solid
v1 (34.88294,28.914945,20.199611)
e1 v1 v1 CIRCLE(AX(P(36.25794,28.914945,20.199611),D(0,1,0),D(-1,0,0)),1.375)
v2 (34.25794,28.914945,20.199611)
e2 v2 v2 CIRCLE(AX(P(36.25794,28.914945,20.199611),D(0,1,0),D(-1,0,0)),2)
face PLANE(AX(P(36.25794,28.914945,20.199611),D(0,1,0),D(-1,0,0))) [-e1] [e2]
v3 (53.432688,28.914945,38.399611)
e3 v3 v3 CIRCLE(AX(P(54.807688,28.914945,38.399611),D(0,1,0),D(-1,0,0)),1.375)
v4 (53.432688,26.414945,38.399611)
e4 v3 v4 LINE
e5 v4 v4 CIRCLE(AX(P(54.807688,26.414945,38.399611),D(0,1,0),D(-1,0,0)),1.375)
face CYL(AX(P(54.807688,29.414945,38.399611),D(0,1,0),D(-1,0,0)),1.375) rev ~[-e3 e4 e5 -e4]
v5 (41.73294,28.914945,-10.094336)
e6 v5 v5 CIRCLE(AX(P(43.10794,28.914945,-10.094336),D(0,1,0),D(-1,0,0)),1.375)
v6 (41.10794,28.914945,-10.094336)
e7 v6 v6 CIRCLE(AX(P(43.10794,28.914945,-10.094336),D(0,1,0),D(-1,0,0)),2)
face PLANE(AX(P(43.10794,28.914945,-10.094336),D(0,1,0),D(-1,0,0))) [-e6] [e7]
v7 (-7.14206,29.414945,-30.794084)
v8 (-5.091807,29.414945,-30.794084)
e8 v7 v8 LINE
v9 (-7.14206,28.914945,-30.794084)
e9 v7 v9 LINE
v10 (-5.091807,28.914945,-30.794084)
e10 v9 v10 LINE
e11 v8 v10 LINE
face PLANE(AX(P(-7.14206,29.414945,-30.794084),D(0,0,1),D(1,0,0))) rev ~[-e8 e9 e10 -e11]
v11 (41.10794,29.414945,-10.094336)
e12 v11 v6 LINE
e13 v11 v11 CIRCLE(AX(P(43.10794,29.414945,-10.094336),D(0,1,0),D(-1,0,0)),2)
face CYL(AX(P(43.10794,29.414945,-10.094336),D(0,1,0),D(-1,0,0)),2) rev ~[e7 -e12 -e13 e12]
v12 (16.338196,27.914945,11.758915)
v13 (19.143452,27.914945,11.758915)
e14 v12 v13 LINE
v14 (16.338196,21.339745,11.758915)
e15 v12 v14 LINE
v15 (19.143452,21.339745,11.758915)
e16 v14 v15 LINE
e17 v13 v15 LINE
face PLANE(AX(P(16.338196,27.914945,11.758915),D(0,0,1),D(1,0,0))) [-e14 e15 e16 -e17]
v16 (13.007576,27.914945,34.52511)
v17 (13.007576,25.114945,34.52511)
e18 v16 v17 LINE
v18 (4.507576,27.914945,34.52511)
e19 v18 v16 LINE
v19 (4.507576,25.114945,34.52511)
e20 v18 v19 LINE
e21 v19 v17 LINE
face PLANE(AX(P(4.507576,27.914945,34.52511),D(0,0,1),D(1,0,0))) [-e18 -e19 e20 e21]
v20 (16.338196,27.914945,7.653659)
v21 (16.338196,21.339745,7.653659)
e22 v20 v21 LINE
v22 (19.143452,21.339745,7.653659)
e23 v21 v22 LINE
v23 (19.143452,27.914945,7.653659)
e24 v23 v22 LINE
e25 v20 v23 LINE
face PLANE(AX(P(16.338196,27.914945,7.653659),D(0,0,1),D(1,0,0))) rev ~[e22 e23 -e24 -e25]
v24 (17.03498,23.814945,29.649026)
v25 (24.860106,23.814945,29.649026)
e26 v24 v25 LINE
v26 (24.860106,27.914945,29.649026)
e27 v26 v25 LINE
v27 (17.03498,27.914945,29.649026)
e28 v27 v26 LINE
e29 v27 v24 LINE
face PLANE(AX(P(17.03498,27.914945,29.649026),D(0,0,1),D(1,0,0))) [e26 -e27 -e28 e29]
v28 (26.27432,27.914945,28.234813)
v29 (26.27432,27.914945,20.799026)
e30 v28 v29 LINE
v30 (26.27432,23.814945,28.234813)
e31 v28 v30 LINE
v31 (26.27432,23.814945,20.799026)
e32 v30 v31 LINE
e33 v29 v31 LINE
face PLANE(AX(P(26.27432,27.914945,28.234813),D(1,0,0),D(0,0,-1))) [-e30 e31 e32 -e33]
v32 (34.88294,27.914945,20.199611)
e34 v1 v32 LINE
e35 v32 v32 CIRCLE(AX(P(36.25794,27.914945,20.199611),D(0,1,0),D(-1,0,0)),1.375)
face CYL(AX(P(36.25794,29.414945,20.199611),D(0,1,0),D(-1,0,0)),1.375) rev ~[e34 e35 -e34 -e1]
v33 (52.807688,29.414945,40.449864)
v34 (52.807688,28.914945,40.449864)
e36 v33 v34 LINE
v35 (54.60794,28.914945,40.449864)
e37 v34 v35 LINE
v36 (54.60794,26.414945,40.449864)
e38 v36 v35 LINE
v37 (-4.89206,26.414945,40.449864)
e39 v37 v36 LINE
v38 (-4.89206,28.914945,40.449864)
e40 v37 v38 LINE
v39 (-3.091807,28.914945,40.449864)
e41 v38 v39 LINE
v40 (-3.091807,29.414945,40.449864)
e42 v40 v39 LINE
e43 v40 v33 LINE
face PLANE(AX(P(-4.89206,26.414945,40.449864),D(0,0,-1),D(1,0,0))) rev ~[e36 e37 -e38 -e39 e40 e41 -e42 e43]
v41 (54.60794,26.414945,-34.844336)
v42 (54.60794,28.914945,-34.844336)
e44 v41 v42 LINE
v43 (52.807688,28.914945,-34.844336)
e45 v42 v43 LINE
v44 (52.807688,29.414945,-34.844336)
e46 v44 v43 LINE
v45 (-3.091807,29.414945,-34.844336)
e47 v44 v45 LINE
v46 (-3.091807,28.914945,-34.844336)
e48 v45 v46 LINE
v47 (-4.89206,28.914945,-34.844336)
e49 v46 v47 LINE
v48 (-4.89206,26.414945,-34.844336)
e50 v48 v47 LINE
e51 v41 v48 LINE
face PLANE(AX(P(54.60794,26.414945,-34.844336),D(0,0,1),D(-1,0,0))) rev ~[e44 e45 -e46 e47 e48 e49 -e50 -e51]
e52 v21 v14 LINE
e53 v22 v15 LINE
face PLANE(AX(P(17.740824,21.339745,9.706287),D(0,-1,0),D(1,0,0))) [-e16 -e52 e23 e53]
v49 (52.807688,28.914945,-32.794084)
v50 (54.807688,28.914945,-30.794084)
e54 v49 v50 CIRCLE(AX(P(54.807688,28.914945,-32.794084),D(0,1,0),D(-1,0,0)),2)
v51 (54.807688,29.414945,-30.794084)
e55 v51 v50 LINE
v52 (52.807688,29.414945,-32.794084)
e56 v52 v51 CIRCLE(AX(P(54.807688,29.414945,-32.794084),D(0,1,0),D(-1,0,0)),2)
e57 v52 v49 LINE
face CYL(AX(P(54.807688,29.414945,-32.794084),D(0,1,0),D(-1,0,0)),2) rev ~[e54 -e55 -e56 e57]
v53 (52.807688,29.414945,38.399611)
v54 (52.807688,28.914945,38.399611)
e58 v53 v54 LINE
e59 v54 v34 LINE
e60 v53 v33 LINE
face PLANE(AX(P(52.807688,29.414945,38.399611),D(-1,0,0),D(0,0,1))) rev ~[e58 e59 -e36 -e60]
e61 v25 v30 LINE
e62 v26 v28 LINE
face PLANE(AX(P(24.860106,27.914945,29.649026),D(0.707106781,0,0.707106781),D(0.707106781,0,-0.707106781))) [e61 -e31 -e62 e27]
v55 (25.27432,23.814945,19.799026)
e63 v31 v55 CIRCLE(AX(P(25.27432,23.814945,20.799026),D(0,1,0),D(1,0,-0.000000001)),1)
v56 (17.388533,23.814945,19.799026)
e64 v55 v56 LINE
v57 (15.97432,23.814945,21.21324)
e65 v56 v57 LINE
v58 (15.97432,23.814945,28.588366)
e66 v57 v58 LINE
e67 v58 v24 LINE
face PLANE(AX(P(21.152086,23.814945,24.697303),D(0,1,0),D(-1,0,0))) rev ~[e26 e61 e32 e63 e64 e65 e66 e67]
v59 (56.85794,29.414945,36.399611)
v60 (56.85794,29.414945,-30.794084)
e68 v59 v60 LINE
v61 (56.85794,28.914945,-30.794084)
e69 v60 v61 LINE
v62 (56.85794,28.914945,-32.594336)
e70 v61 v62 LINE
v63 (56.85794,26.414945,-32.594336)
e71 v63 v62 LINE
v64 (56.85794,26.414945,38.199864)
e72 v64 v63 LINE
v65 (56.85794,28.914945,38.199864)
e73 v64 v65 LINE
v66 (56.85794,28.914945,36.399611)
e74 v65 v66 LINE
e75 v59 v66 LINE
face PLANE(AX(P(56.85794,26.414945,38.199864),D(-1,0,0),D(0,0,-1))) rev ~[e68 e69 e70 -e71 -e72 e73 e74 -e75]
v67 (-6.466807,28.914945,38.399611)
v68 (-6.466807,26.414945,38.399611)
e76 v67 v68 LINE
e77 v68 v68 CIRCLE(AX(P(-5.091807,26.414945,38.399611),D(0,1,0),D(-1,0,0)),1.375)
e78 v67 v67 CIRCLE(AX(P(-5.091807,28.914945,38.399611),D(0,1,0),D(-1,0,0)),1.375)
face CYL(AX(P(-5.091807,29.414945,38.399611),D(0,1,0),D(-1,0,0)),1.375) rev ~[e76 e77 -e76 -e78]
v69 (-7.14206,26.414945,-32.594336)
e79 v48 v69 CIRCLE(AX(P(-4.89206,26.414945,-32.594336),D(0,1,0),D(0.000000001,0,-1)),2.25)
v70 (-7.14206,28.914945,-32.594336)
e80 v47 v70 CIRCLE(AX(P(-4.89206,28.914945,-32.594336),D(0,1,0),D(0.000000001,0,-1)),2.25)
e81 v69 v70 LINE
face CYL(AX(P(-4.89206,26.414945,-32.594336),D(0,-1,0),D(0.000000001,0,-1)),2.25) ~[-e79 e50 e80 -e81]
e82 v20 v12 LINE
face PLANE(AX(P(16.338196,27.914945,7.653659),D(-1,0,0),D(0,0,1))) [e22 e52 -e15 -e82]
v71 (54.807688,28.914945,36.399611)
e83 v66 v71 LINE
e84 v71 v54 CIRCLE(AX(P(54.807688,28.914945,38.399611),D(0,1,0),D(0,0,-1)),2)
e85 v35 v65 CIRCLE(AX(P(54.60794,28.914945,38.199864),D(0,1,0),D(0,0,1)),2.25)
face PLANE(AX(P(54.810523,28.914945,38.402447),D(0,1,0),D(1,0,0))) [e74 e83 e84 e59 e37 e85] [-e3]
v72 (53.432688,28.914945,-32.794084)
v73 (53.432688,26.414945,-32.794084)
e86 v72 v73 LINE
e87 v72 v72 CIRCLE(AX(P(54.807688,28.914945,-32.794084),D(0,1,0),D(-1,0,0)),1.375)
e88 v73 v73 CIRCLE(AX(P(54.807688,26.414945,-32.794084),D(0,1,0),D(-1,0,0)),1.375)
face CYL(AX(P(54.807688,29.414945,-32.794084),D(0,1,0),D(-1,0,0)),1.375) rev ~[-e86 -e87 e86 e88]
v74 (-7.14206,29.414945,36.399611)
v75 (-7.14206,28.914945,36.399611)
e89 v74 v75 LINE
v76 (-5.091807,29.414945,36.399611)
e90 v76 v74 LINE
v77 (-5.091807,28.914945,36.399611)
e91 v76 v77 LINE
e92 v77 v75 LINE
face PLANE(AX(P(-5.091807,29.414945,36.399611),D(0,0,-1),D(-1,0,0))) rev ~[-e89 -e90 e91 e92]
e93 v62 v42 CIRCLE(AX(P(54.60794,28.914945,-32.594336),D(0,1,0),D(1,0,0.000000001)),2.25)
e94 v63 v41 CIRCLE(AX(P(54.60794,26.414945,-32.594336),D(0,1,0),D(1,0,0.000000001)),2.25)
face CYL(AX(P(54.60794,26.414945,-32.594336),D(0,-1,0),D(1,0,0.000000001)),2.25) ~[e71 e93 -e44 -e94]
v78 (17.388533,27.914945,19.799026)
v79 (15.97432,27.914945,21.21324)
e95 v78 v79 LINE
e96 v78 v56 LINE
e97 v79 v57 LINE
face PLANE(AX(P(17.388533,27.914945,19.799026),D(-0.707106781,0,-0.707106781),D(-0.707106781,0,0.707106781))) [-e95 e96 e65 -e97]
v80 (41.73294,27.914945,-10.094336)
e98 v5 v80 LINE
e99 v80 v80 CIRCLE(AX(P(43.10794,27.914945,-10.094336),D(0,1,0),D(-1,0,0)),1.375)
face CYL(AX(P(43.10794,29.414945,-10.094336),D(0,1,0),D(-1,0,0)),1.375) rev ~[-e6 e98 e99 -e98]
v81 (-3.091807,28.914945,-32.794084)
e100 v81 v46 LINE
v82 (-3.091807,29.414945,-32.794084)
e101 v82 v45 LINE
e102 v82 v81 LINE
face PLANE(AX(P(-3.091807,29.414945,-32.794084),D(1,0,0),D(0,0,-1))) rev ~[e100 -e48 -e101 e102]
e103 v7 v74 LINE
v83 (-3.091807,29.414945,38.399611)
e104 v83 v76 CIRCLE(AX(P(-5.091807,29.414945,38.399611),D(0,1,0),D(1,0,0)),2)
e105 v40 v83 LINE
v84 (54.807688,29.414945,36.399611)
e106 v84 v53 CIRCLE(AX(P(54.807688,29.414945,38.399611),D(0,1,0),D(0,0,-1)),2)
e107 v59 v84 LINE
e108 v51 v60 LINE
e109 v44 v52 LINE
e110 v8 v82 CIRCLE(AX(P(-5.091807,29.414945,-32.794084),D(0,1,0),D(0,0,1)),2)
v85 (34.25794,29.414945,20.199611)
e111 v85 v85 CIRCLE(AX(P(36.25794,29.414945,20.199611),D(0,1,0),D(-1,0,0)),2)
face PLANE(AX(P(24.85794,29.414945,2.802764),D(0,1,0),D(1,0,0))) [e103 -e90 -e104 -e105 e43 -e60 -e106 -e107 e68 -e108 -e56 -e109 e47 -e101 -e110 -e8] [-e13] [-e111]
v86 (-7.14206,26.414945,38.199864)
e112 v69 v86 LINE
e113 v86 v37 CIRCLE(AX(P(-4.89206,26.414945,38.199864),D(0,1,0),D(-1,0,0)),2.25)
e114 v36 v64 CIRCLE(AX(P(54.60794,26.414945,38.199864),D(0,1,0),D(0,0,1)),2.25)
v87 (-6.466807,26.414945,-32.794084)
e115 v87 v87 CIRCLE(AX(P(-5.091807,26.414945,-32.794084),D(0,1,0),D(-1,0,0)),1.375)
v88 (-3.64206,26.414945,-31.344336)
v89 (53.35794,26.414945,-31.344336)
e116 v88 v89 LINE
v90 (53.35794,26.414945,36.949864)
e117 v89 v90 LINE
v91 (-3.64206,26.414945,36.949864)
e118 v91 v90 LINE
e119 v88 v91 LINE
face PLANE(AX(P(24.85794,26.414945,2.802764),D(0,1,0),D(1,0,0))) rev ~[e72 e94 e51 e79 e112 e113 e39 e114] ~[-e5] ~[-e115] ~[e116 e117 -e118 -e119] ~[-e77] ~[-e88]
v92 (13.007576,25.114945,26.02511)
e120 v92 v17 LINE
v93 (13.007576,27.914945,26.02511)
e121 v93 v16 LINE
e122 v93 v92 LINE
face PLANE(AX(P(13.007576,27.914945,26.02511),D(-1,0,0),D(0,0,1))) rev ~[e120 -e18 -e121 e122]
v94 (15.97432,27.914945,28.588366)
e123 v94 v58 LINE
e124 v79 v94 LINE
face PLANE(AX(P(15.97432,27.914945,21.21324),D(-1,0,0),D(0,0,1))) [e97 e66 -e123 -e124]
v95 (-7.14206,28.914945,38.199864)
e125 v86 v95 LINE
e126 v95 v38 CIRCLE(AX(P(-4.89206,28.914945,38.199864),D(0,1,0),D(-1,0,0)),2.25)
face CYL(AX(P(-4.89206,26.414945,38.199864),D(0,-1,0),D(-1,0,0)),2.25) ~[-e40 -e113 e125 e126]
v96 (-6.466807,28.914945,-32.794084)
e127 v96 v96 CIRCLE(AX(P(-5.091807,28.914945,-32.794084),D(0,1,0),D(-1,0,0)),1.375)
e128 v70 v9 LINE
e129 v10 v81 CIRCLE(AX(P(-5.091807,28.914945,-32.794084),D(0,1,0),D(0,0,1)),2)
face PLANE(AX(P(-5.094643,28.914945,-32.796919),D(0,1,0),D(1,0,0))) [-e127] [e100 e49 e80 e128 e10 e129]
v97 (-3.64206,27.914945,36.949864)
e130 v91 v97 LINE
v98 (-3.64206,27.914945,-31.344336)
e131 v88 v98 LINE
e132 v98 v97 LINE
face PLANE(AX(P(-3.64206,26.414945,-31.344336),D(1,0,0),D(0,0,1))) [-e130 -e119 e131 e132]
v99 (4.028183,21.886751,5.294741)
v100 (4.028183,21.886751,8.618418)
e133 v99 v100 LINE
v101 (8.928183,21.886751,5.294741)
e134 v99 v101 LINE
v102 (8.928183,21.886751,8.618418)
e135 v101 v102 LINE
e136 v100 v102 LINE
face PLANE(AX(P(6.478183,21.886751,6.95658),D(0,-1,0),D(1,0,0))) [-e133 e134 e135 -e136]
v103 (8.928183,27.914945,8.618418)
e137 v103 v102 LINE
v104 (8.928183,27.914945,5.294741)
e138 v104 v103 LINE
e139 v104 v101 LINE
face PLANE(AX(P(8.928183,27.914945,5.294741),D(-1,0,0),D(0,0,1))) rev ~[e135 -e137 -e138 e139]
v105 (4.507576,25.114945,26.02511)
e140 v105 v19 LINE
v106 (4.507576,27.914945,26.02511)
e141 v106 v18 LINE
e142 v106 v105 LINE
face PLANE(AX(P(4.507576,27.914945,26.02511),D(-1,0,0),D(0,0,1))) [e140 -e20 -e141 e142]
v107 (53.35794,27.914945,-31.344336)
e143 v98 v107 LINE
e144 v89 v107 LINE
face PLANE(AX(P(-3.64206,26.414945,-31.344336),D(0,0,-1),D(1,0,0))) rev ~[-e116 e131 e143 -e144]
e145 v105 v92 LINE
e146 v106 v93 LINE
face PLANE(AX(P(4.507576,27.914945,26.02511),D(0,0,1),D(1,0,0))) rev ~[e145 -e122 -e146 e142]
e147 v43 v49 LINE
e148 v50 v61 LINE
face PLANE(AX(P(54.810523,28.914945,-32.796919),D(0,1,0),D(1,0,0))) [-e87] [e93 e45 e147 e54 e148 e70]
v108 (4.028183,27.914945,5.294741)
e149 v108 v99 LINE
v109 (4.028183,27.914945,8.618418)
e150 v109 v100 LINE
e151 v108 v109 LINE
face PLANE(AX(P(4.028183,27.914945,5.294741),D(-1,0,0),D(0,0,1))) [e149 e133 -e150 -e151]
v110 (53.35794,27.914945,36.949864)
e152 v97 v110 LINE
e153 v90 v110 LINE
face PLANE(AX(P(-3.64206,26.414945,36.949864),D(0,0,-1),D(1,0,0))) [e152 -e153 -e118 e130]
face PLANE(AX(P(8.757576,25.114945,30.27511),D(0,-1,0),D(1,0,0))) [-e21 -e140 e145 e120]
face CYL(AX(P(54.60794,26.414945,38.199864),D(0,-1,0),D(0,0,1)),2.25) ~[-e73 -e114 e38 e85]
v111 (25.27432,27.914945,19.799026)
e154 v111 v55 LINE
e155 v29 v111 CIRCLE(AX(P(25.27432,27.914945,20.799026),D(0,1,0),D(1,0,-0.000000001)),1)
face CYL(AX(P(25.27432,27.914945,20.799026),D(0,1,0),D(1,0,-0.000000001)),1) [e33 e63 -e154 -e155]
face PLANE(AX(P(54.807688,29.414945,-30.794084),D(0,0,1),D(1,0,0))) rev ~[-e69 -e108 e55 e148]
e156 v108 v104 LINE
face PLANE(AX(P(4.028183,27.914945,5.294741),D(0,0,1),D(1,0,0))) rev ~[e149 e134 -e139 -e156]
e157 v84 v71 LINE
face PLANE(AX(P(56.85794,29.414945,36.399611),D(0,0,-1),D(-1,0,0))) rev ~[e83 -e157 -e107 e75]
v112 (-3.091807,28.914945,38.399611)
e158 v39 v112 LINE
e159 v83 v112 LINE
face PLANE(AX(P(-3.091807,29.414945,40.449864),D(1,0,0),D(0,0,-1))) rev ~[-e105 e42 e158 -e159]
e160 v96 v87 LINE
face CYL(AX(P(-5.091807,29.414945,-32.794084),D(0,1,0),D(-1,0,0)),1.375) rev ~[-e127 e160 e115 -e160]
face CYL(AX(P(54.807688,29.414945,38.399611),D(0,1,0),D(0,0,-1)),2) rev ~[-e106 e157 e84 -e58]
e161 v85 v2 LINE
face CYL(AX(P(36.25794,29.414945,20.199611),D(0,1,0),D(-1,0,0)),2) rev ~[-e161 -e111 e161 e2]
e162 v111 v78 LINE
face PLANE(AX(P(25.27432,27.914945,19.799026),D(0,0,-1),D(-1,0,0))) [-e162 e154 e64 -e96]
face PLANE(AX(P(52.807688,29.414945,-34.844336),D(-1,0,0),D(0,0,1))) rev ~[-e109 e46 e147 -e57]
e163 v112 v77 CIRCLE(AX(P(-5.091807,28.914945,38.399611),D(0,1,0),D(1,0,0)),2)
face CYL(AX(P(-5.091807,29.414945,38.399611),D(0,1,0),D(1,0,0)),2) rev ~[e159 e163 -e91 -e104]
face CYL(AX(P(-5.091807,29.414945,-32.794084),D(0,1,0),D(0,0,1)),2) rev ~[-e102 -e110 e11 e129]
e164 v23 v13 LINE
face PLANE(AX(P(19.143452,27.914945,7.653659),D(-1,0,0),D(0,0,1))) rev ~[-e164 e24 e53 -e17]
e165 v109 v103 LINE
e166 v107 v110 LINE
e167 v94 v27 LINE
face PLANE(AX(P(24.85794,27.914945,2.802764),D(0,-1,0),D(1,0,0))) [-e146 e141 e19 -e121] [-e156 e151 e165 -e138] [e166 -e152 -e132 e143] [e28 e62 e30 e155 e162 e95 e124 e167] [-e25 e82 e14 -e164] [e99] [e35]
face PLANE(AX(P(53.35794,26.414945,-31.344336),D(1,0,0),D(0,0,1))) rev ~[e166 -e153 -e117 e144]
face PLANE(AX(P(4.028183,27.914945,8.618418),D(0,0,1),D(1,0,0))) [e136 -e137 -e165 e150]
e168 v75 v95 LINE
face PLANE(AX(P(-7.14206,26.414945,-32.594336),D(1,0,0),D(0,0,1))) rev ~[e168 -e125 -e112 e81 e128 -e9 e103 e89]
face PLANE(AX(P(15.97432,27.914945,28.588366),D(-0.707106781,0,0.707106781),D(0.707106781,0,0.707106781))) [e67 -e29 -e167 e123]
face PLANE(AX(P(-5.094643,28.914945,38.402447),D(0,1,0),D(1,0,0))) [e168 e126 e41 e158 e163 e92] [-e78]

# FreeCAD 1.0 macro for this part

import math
import FreeCAD as App
import Part
import Sketcher
from FreeCAD import Vector
Q = App.Units.Quantity


def add_polygon(sketch, points):
    """Adds a closed chain of lines whose ends are joined by coincident constraints."""
    first, n = sketch.GeometryCount, len(points)
    for a, b in zip(points, points[1:] + points[:1]):
        sketch.addGeometry(Part.LineSegment(App.Vector(*a, 0), App.Vector(*b, 0)), False)
    for i in range(n):
        sketch.addConstraint(Sketcher.Constraint("Coincident", first + i, 2, first + (i + 1) % n, 1))

doc = App.newDocument("Part")
body = doc.addObject("PartDesign::Body", "Body")

# Sketch on XZ plane
sketch1 = doc.addObject("Sketcher::SketchObject", "Sketch")
body.addObject(sketch1)
sketch1.AttachmentSupport = (doc.XZ_Plane, [""])
sketch1.MapMode = "FlatFace"
sketch1.AttachmentOffset = App.Placement(Vector(0, 0, -26.414945), App.Rotation())
sketch1.addGeometry(Part.LineSegment(Vector(-4.9, 40.4, 0), Vector(54.6, 40.4, 0)), False)
sketch1.addGeometry(Part.ArcOfCircle(Part.Circle(Vector(54.6, 38.2, 0), Vector(0, 0, 1), 2.3), math.radians(0), math.radians(90)), False)
sketch1.addGeometry(Part.LineSegment(Vector(56.9, 38.2, 0), Vector(56.9, -32.6, 0)), False)
sketch1.addGeometry(Part.ArcOfCircle(Part.Circle(Vector(54.6, -32.6, 0), Vector(0, 0, 1), 2.2), math.radians(-90), math.radians(0)), False)
sketch1.addGeometry(Part.LineSegment(Vector(54.6, -34.8, 0), Vector(-4.9, -34.8, 0)), False)
sketch1.addGeometry(Part.ArcOfCircle(Part.Circle(Vector(-4.9, -32.6, 0), Vector(0, 0, 1), 2.2), math.radians(180), math.radians(270)), False)
sketch1.addGeometry(Part.LineSegment(Vector(-7.1, -32.6, 0), Vector(-7.1, 38.2, 0)), False)
sketch1.addGeometry(Part.ArcOfCircle(Part.Circle(Vector(-4.9, 38.2, 0), Vector(0, 0, 1), 2.3), math.radians(90), math.radians(180)), False)
sketch1.addConstraint(Sketcher.Constraint("Tangent", 0, 2, 1, 2))
sketch1.addConstraint(Sketcher.Constraint("Tangent", 1, 1, 2, 1))
sketch1.addConstraint(Sketcher.Constraint("Tangent", 2, 2, 3, 2))
sketch1.addConstraint(Sketcher.Constraint("Tangent", 3, 1, 4, 1))
sketch1.addConstraint(Sketcher.Constraint("Tangent", 4, 2, 5, 2))
sketch1.addConstraint(Sketcher.Constraint("Tangent", 5, 1, 6, 1))
sketch1.addConstraint(Sketcher.Constraint("Tangent", 6, 2, 7, 2))
sketch1.addConstraint(Sketcher.Constraint("Tangent", 7, 1, 0, 1))
sketch1.addConstraint(Sketcher.Constraint("Horizontal", 0))
sketch1.addConstraint(Sketcher.Constraint("Vertical", 2))
sketch1.addConstraint(Sketcher.Constraint("Horizontal", 4))
sketch1.addConstraint(Sketcher.Constraint("Vertical", 6))
sketch1.addConstraint(Sketcher.Constraint("Equal", 1, 3))
sketch1.addConstraint(Sketcher.Constraint("Equal", 3, 5))
sketch1.addConstraint(Sketcher.Constraint("Equal", 5, 7))
sketch1.addConstraint(Sketcher.Constraint("Radius", 1, Q("2.25 mm")))
sketch1.addConstraint(Sketcher.Constraint("DistanceX", 0, 1, 0, 2, Q("59.5 mm")))
sketch1.addConstraint(Sketcher.Constraint("DistanceY", 2, 2, 2, 1, Q("70.7942 mm")))
sketch1.addConstraint(Sketcher.Constraint("DistanceX", -1, 1, 1, 3, Q("54.60794 mm")))
sketch1.addConstraint(Sketcher.Constraint("DistanceY", -1, 1, 1, 3, Q("38.199864 mm")))
pad1 = doc.addObject("PartDesign::Pad", "Pad")
body.addObject(pad1)
pad1.Profile = sketch1
pad1.Length = 3
pad1.Reversed = True

# Sketch on XZ plane
sketch2 = doc.addObject("Sketcher::SketchObject", "Sketch001")
body.addObject(sketch2)
sketch2.AttachmentSupport = (doc.XZ_Plane, [""])
sketch2.MapMode = "FlatFace"
sketch2.AttachmentOffset = App.Placement(Vector(0, 0, -26.414945), App.Rotation())
add_polygon(sketch2, [(-4, 37), (-4, -31), (53, -31), (53, 37)])  # lines 0-3
sketch2.addConstraint(Sketcher.Constraint("Vertical", 0))
sketch2.addConstraint(Sketcher.Constraint("Horizontal", 1))
sketch2.addConstraint(Sketcher.Constraint("Vertical", 2))
sketch2.addConstraint(Sketcher.Constraint("Horizontal", 3))
sketch2.addConstraint(Sketcher.Constraint("DistanceX", 1, 1, 1, 2, Q("57 mm")))
sketch2.addConstraint(Sketcher.Constraint("DistanceY", 0, 2, 0, 1, Q("68.2942 mm")))
sketch2.addConstraint(Sketcher.Constraint("DistanceX", 0, 2, -1, 1, Q("3.64206 mm")))
sketch2.addConstraint(Sketcher.Constraint("DistanceY", 0, 2, -1, 1, Q("31.344336 mm")))
pocket1 = doc.addObject("PartDesign::Pocket", "Pocket")
body.addObject(pocket1)
pocket1.Profile = sketch2
pocket1.Length = 1.5

# Sketch on XZ plane
sketch3 = doc.addObject("Sketcher::SketchObject", "Sketch002")
body.addObject(sketch3)
sketch3.AttachmentSupport = (doc.XZ_Plane, [""])
sketch3.MapMode = "FlatFace"
sketch3.AttachmentOffset = App.Placement(Vector(0, 0, -29.414945), App.Rotation())
sketch3.addGeometry(Part.Circle(Vector(-5.1, -32.8, 0), Vector(0, 0, 1), 1.4), False)
sketch3.addGeometry(Part.Circle(Vector(54.8, -32.8, 0), Vector(0, 0, 1), 1.4), False)
sketch3.addGeometry(Part.Circle(Vector(43.1, -10.1, 0), Vector(0, 0, 1), 1.4), False)
sketch3.addGeometry(Part.Circle(Vector(36.3, 20.2, 0), Vector(0, 0, 1), 1.4), False)
sketch3.addGeometry(Part.Circle(Vector(54.8, 38.4, 0), Vector(0, 0, 1), 1.4), False)
sketch3.addGeometry(Part.Circle(Vector(-5.1, 38.4, 0), Vector(0, 0, 1), 1.4), False)
sketch3.addConstraint(Sketcher.Constraint("Equal", 0, 1))
sketch3.addConstraint(Sketcher.Constraint("Equal", 1, 2))
sketch3.addConstraint(Sketcher.Constraint("Equal", 2, 3))
sketch3.addConstraint(Sketcher.Constraint("Equal", 3, 4))
sketch3.addConstraint(Sketcher.Constraint("Equal", 4, 5))
sketch3.addConstraint(Sketcher.Constraint("Horizontal", 0, 3, 1, 3))
sketch3.addConstraint(Sketcher.Constraint("Horizontal", 4, 3, 5, 3))
sketch3.addConstraint(Sketcher.Constraint("Vertical", 1, 3, 4, 3))
sketch3.addConstraint(Sketcher.Constraint("Vertical", 0, 3, 5, 3))
sketch3.addConstraint(Sketcher.Constraint("Diameter", 0, Q("2.75 mm")))
sketch3.addConstraint(Sketcher.Constraint("DistanceY", 3, 3, 4, 3, Q("18.2 mm")))
sketch3.addConstraint(Sketcher.Constraint("DistanceX", 3, 3, 2, 3, Q("6.85 mm")))
sketch3.addConstraint(Sketcher.Constraint("DistanceX", -1, 1, 2, 3, Q("43.10794 mm")))
sketch3.addConstraint(Sketcher.Constraint("DistanceY", -1, 1, 3, 3, Q("20.199611 mm")))
sketch3.addConstraint(Sketcher.Constraint("DistanceX", 0, 3, -1, 1, Q("5.091807 mm")))
sketch3.addConstraint(Sketcher.Constraint("DistanceY", 0, 3, -1, 1, Q("32.794084 mm")))
sketch3.addConstraint(Sketcher.Constraint("DistanceX", -1, 1, 1, 3, Q("54.807688 mm")))
sketch3.addConstraint(Sketcher.Constraint("DistanceY", 2, 3, -1, 1, Q("10.094336 mm")))
pocket2 = doc.addObject("PartDesign::Pocket", "Pocket001")
body.addObject(pocket2)
pocket2.Profile = sketch3
pocket2.Type = "ThroughAll"
pocket2.Reversed = True

# Sketch on XZ plane
sketch4 = doc.addObject("Sketcher::SketchObject", "Sketch003")
body.addObject(sketch4)
sketch4.AttachmentSupport = (doc.XZ_Plane, [""])
sketch4.MapMode = "FlatFace"
sketch4.AttachmentOffset = App.Placement(Vector(0, 0, -29.414945), App.Rotation())
sketch4.addGeometry(Part.ArcOfCircle(Part.Circle(Vector(-4.9, 38.2, 0), Vector(0, 0, 1), 2.3), math.radians(90), math.radians(180)), False)
sketch4.addGeometry(Part.LineSegment(Vector(-4.9, 40.4, 0), Vector(-3.1, 40.4, 0)), False)
sketch4.addGeometry(Part.LineSegment(Vector(-3.1, 40.4, 0), Vector(-3.1, 38.4, 0)), False)
sketch4.addGeometry(Part.ArcOfCircle(Part.Circle(Vector(-5.1, 38.4, 0), Vector(0, 0, 1), 2), math.radians(-90), math.radians(0)), False)
sketch4.addGeometry(Part.LineSegment(Vector(-5.1, 36.4, 0), Vector(-7.1, 36.4, 0)), False)
sketch4.addGeometry(Part.LineSegment(Vector(-7.1, 36.4, 0), Vector(-7.1, 38.2, 0)), False)
sketch4.addGeometry(Part.Circle(Vector(-5.1, 38.4, 0), Vector(0, 0, 1), 1.4), False)
sketch4.addGeometry(Part.Circle(Vector(36.3, 20.2, 0), Vector(0, 0, 1), 2), False)
sketch4.addGeometry(Part.Circle(Vector(36.3, 20.2, 0), Vector(0, 0, 1), 1.4), False)
sketch4.addGeometry(Part.LineSegment(Vector(52.8, 38.4, 0), Vector(52.8, 40.4, 0)), False)
sketch4.addGeometry(Part.LineSegment(Vector(52.8, 40.4, 0), Vector(54.6, 40.4, 0)), False)
sketch4.addGeometry(Part.ArcOfCircle(Part.Circle(Vector(54.6, 38.2, 0), Vector(0, 0, 1), 2.3), math.radians(0), math.radians(90)), False)
sketch4.addGeometry(Part.LineSegment(Vector(56.9, 38.2, 0), Vector(56.9, 36.4, 0)), False)
sketch4.addGeometry(Part.LineSegment(Vector(56.9, 36.4, 0), Vector(54.8, 36.4, 0)), False)
sketch4.addGeometry(Part.ArcOfCircle(Part.Circle(Vector(54.8, 38.4, 0), Vector(0, 0, 1), 2), math.radians(180), math.radians(270)), False)
sketch4.addGeometry(Part.Circle(Vector(54.8, 38.4, 0), Vector(0, 0, 1), 1.4), False)
sketch4.addGeometry(Part.Circle(Vector(43.1, -10.1, 0), Vector(0, 0, 1), 2), False)
sketch4.addGeometry(Part.Circle(Vector(43.1, -10.1, 0), Vector(0, 0, 1), 1.4), False)
sketch4.addGeometry(Part.LineSegment(Vector(54.8, -30.8, 0), Vector(56.9, -30.8, 0)), False)
sketch4.addGeometry(Part.LineSegment(Vector(56.9, -30.8, 0), Vector(56.9, -32.6, 0)), False)
sketch4.addGeometry(Part.ArcOfCircle(Part.Circle(Vector(54.6, -32.6, 0), Vector(0, 0, 1), 2.2), math.radians(-90), math.radians(0)), False)
sketch4.addGeometry(Part.LineSegment(Vector(54.6, -34.8, 0), Vector(52.8, -34.8, 0)), False)
sketch4.addGeometry(Part.LineSegment(Vector(52.8, -34.8, 0), Vector(52.8, -32.8, 0)), False)
sketch4.addGeometry(Part.ArcOfCircle(Part.Circle(Vector(54.8, -32.8, 0), Vector(0, 0, 1), 2), math.radians(90), math.radians(180)), False)
sketch4.addGeometry(Part.Circle(Vector(54.8, -32.8, 0), Vector(0, 0, 1), 1.4), False)
sketch4.addGeometry(Part.LineSegment(Vector(-7.1, -32.6, 0), Vector(-7.1, -30.8, 0)), False)
sketch4.addGeometry(Part.LineSegment(Vector(-7.1, -30.8, 0), Vector(-5.1, -30.8, 0)), False)
sketch4.addGeometry(Part.ArcOfCircle(Part.Circle(Vector(-5.1, -32.8, 0), Vector(0, 0, 1), 2), math.radians(0), math.radians(90)), False)
sketch4.addGeometry(Part.LineSegment(Vector(-3.1, -32.8, 0), Vector(-3.1, -34.8, 0)), False)
sketch4.addGeometry(Part.LineSegment(Vector(-3.1, -34.8, 0), Vector(-4.9, -34.8, 0)), False)
sketch4.addGeometry(Part.ArcOfCircle(Part.Circle(Vector(-4.9, -32.6, 0), Vector(0, 0, 1), 2.2), math.radians(180), math.radians(270)), False)
sketch4.addGeometry(Part.Circle(Vector(-5.1, -32.8, 0), Vector(0, 0, 1), 1.4), False)
sketch4.addConstraint(Sketcher.Constraint("Tangent", 0, 1, 1, 1))
sketch4.addConstraint(Sketcher.Constraint("Coincident", 1, 2, 2, 1))
sketch4.addConstraint(Sketcher.Constraint("Tangent", 2, 2, 3, 2))
sketch4.addConstraint(Sketcher.Constraint("Tangent", 3, 1, 4, 1))
sketch4.addConstraint(Sketcher.Constraint("Coincident", 4, 2, 5, 1))
sketch4.addConstraint(Sketcher.Constraint("Tangent", 5, 2, 0, 2))
sketch4.addConstraint(Sketcher.Constraint("Coincident", 9, 2, 10, 1))
sketch4.addConstraint(Sketcher.Constraint("Tangent", 10, 2, 11, 2))
sketch4.addConstraint(Sketcher.Constraint("Tangent", 11, 1, 12, 1))
sketch4.addConstraint(Sketcher.Constraint("Coincident", 12, 2, 13, 1))
sketch4.addConstraint(Sketcher.Constraint("Tangent", 13, 2, 14, 2))
sketch4.addConstraint(Sketcher.Constraint("Tangent", 14, 1, 9, 1))
sketch4.addConstraint(Sketcher.Constraint("Coincident", 18, 2, 19, 1))
sketch4.addConstraint(Sketcher.Constraint("Tangent", 19, 2, 20, 2))
sketch4.addConstraint(Sketcher.Constraint("Tangent", 20, 1, 21, 1))
sketch4.addConstraint(Sketcher.Constraint("Coincident", 21, 2, 22, 1))
sketch4.addConstraint(Sketcher.Constraint("Tangent", 22, 2, 23, 2))
sketch4.addConstraint(Sketcher.Constraint("Tangent", 23, 1, 18, 1))
sketch4.addConstraint(Sketcher.Constraint("Coincident", 25, 2, 26, 1))
sketch4.addConstraint(Sketcher.Constraint("Tangent", 26, 2, 27, 2))
sketch4.addConstraint(Sketcher.Constraint("Tangent", 27, 1, 28, 1))
sketch4.addConstraint(Sketcher.Constraint("Coincident", 28, 2, 29, 1))
sketch4.addConstraint(Sketcher.Constraint("Tangent", 29, 2, 30, 2))
sketch4.addConstraint(Sketcher.Constraint("Tangent", 30, 1, 25, 1))
sketch4.addConstraint(Sketcher.Constraint("Horizontal", 1))
sketch4.addConstraint(Sketcher.Constraint("Vertical", 2))
sketch4.addConstraint(Sketcher.Constraint("Horizontal", 4))
sketch4.addConstraint(Sketcher.Constraint("Vertical", 5))
sketch4.addConstraint(Sketcher.Constraint("Vertical", 9))
sketch4.addConstraint(Sketcher.Constraint("Horizontal", 10))
sketch4.addConstraint(Sketcher.Constraint("Vertical", 12))
sketch4.addConstraint(Sketcher.Constraint("Horizontal", 13))
sketch4.addConstraint(Sketcher.Constraint("Horizontal", 18))
sketch4.addConstraint(Sketcher.Constraint("Vertical", 19))
sketch4.addConstraint(Sketcher.Constraint("Horizontal", 21))
sketch4.addConstraint(Sketcher.Constraint("Vertical", 22))
sketch4.addConstraint(Sketcher.Constraint("Vertical", 25))
sketch4.addConstraint(Sketcher.Constraint("Horizontal", 26))
sketch4.addConstraint(Sketcher.Constraint("Vertical", 28))
sketch4.addConstraint(Sketcher.Constraint("Horizontal", 29))
sketch4.addConstraint(Sketcher.Constraint("Coincident", 6, 3, 3, 3))
sketch4.addConstraint(Sketcher.Constraint("Coincident", 8, 3, 7, 3))
sketch4.addConstraint(Sketcher.Constraint("Coincident", 15, 3, 14, 3))
sketch4.addConstraint(Sketcher.Constraint("Coincident", 17, 3, 16, 3))
sketch4.addConstraint(Sketcher.Constraint("Coincident", 24, 3, 23, 3))
sketch4.addConstraint(Sketcher.Constraint("Coincident", 31, 3, 27, 3))
sketch4.addConstraint(Sketcher.Constraint("Equal", 3, 7))
sketch4.addConstraint(Sketcher.Constraint("Equal", 6, 8))
sketch4.addConstraint(Sketcher.Constraint("Equal", 0, 11))
sketch4.addConstraint(Sketcher.Constraint("Equal", 7, 14))
sketch4.addConstraint(Sketcher.Constraint("Equal", 8, 15))
sketch4.addConstraint(Sketcher.Constraint("Equal", 14, 16))
sketch4.addConstraint(Sketcher.Constraint("Equal", 15, 17))
sketch4.addConstraint(Sketcher.Constraint("Equal", 11, 20))
sketch4.addConstraint(Sketcher.Constraint("Equal", 16, 23))
sketch4.addConstraint(Sketcher.Constraint("Equal", 17, 24))
sketch4.addConstraint(Sketcher.Constraint("Equal", 23, 27))
sketch4.addConstraint(Sketcher.Constraint("Equal", 20, 30))
sketch4.addConstraint(Sketcher.Constraint("Equal", 24, 31))
sketch4.addConstraint(Sketcher.Constraint("Horizontal", 0, 3, 11, 3))
sketch4.addConstraint(Sketcher.Constraint("Horizontal", 6, 3, 14, 3))
sketch4.addConstraint(Sketcher.Constraint("Horizontal", 24, 3, 27, 3))
sketch4.addConstraint(Sketcher.Constraint("Horizontal", 20, 3, 30, 3))
sketch4.addConstraint(Sketcher.Constraint("Vertical", 11, 3, 20, 3))
sketch4.addConstraint(Sketcher.Constraint("Vertical", 15, 3, 23, 3))
sketch4.addConstraint(Sketcher.Constraint("Vertical", 6, 3, 27, 3))
sketch4.addConstraint(Sketcher.Constraint("Vertical", 0, 3, 30, 3))
sketch4.addConstraint(Sketcher.Constraint("Equal", 1, 10))
sketch4.addConstraint(Sketcher.Constraint("Equal", 26, 2))
sketch4.addConstraint(Sketcher.Constraint("Equal", 12, 19))
sketch4.addConstraint(Sketcher.Constraint("Diameter", 7, Q("4 mm")))
sketch4.addConstraint(Sketcher.Constraint("Diameter", 6, Q("2.75 mm")))
sketch4.addConstraint(Sketcher.Constraint("Radius", 0, Q("2.25 mm")))
sketch4.addConstraint(Sketcher.Constraint("DistanceX", 30, 3, 16, 3, Q("48 mm")))
sketch4.addConstraint(Sketcher.Constraint("DistanceY", 7, 3, 3, 3, Q("18.2 mm")))
sketch4.addConstraint(Sketcher.Constraint("DistanceX", 0, 3, 11, 3, Q("59.5 mm")))
sketch4.addConstraint(Sketcher.Constraint("DistanceY", 20, 3, 16, 3, Q("22.5 mm")))
sketch4.addConstraint(Sketcher.Constraint("DistanceX", 0, 3, 7, 3, Q("41.15 mm")))
sketch4.addConstraint(Sketcher.Constraint("DistanceY", 16, 3, 11, 3, Q("48.2942 mm")))
sketch4.addConstraint(Sketcher.Constraint("DistanceX", 1, 1, 1, 2, Q("1.800253 mm")))
sketch4.addConstraint(Sketcher.Constraint("DistanceX", 0, 3, -1, 1, Q("4.89206 mm")))
sketch4.addConstraint(Sketcher.Constraint("DistanceY", -1, 1, 3, 3, Q("38.399611 mm")))
pocket3 = doc.addObject("PartDesign::Pocket", "Pocket002")
body.addObject(pocket3)
pocket3.Profile = sketch4
pocket3.Length = 0.5
pocket3.Reversed = True

# Sketch on XZ plane
sketch5 = doc.addObject("Sketcher::SketchObject", "Sketch004")
body.addObject(sketch5)
sketch5.AttachmentSupport = (doc.XZ_Plane, [""])
sketch5.MapMode = "FlatFace"
sketch5.AttachmentOffset = App.Placement(Vector(0, 0, -27.914945), App.Rotation())
add_polygon(sketch5, [(5, 35), (5, 26), (13, 26), (13, 35)])  # lines 0-3
sketch5.addConstraint(Sketcher.Constraint("Vertical", 0))
sketch5.addConstraint(Sketcher.Constraint("Horizontal", 1))
sketch5.addConstraint(Sketcher.Constraint("Vertical", 2))
sketch5.addConstraint(Sketcher.Constraint("Horizontal", 3))
sketch5.addConstraint(Sketcher.Constraint("Equal", 3, 0))
sketch5.addConstraint(Sketcher.Constraint("DistanceX", 1, 1, 1, 2, Q("8.5 mm")))
sketch5.addConstraint(Sketcher.Constraint("DistanceY", -1, 1, 0, 2, Q("26.02511 mm")))
sketch5.addConstraint(Sketcher.Constraint("DistanceX", -1, 1, 0, 2, Q("4.507576 mm")))
pad2 = doc.addObject("PartDesign::Pad", "Pad001")
body.addObject(pad2)
pad2.Profile = sketch5
pad2.Length = 2.8

# Sketch on XZ plane
sketch6 = doc.addObject("Sketcher::SketchObject", "Sketch005")
body.addObject(sketch6)
sketch6.AttachmentSupport = (doc.XZ_Plane, [""])
sketch6.MapMode = "FlatFace"
sketch6.AttachmentOffset = App.Placement(Vector(0, 0, -27.914945), App.Rotation())
sketch6.addGeometry(Part.ArcOfCircle(Part.Circle(Vector(25.3, 20.8, 0), Vector(0, 0, 1), 1), math.radians(-90), math.radians(0)), False)
sketch6.addGeometry(Part.LineSegment(Vector(26.3, 20.8, 0), Vector(26.3, 28.2, 0)), False)
sketch6.addGeometry(Part.LineSegment(Vector(26.3, 28.2, 0), Vector(24.9, 29.6, 0)), False)
sketch6.addGeometry(Part.LineSegment(Vector(24.9, 29.6, 0), Vector(17, 29.6, 0)), False)
sketch6.addGeometry(Part.LineSegment(Vector(17, 29.6, 0), Vector(16, 28.6, 0)), False)
sketch6.addGeometry(Part.LineSegment(Vector(16, 28.6, 0), Vector(16, 21.2, 0)), False)
sketch6.addGeometry(Part.LineSegment(Vector(16, 21.2, 0), Vector(17.4, 19.8, 0)), False)
sketch6.addGeometry(Part.LineSegment(Vector(17.4, 19.8, 0), Vector(25.3, 19.8, 0)), False)
sketch6.addConstraint(Sketcher.Constraint("Tangent", 0, 2, 1, 1))
sketch6.addConstraint(Sketcher.Constraint("Coincident", 1, 2, 2, 1))
sketch6.addConstraint(Sketcher.Constraint("Coincident", 2, 2, 3, 1))
sketch6.addConstraint(Sketcher.Constraint("Coincident", 3, 2, 4, 1))
sketch6.addConstraint(Sketcher.Constraint("Coincident", 4, 2, 5, 1))
sketch6.addConstraint(Sketcher.Constraint("Coincident", 5, 2, 6, 1))
sketch6.addConstraint(Sketcher.Constraint("Coincident", 6, 2, 7, 1))
sketch6.addConstraint(Sketcher.Constraint("Tangent", 7, 2, 0, 1))
sketch6.addConstraint(Sketcher.Constraint("Vertical", 1))
sketch6.addConstraint(Sketcher.Constraint("Horizontal", 3))
sketch6.addConstraint(Sketcher.Constraint("Vertical", 5))
sketch6.addConstraint(Sketcher.Constraint("Horizontal", 7))
sketch6.addConstraint(Sketcher.Constraint("Perpendicular", 2, 4))
sketch6.addConstraint(Sketcher.Constraint("Perpendicular", 4, 6))
sketch6.addConstraint(Sketcher.Constraint("Equal", 2, 6))
sketch6.addConstraint(Sketcher.Constraint("Radius", 0, Q("1 mm")))
sketch6.addConstraint(Sketcher.Constraint("Angle", 2, Q("135 deg")))
sketch6.addConstraint(Sketcher.Constraint("Distance", 2, Q("2 mm")))
sketch6.addConstraint(Sketcher.Constraint("Distance", 4, Q("1.5 mm")))
sketch6.addConstraint(Sketcher.Constraint("DistanceX", 4, 2, 1, 2, Q("10.3 mm")))
sketch6.addConstraint(Sketcher.Constraint("DistanceY", 0, 3, 2, 2, Q("8.85 mm")))
sketch6.addConstraint(Sketcher.Constraint("DistanceX", -1, 1, 0, 3, Q("25.27432 mm")))
sketch6.addConstraint(Sketcher.Constraint("DistanceY", -1, 1, 5, 2, Q("21.21324 mm")))
pad3 = doc.addObject("PartDesign::Pad", "Pad002")
body.addObject(pad3)
pad3.Profile = sketch6
pad3.Length = 4.1

# Sketch on XZ plane
sketch7 = doc.addObject("Sketcher::SketchObject", "Sketch006")
body.addObject(sketch7)
sketch7.AttachmentSupport = (doc.XZ_Plane, [""])
sketch7.MapMode = "FlatFace"
sketch7.AttachmentOffset = App.Placement(Vector(0, 0, -27.914945), App.Rotation())
add_polygon(sketch7, [(4, 8.6), (4, 5.3), (8.9, 5.3), (8.9, 8.6)])  # lines 0-3
sketch7.addConstraint(Sketcher.Constraint("Vertical", 0))
sketch7.addConstraint(Sketcher.Constraint("Horizontal", 1))
sketch7.addConstraint(Sketcher.Constraint("Vertical", 2))
sketch7.addConstraint(Sketcher.Constraint("Horizontal", 3))
sketch7.addConstraint(Sketcher.Constraint("DistanceX", 1, 1, 1, 2, Q("4.9 mm")))
sketch7.addConstraint(Sketcher.Constraint("DistanceY", 0, 2, 0, 1, Q("3.323676 mm")))
sketch7.addConstraint(Sketcher.Constraint("DistanceY", -1, 1, 0, 2, Q("5.294741 mm")))
sketch7.addConstraint(Sketcher.Constraint("DistanceX", -1, 1, 0, 2, Q("4.028183 mm")))
pad4 = doc.addObject("PartDesign::Pad", "Pad003")
body.addObject(pad4)
pad4.Profile = sketch7
pad4.Length = 6.028194

# Sketch on XZ plane
sketch8 = doc.addObject("Sketcher::SketchObject", "Sketch007")
body.addObject(sketch8)
sketch8.AttachmentSupport = (doc.XZ_Plane, [""])
sketch8.MapMode = "FlatFace"
sketch8.AttachmentOffset = App.Placement(Vector(0, 0, -27.914945), App.Rotation())
add_polygon(sketch8, [(16.3, 11.8), (16.3, 7.7), (19.1, 7.7), (19.1, 11.8)])  # lines 0-3
sketch8.addConstraint(Sketcher.Constraint("Vertical", 0))
sketch8.addConstraint(Sketcher.Constraint("Horizontal", 1))
sketch8.addConstraint(Sketcher.Constraint("Vertical", 2))
sketch8.addConstraint(Sketcher.Constraint("Horizontal", 3))
sketch8.addConstraint(Sketcher.Constraint("DistanceX", 1, 1, 1, 2, Q("2.805256 mm")))
sketch8.addConstraint(Sketcher.Constraint("DistanceY", 0, 2, 0, 1, Q("4.105256 mm")))
sketch8.addConstraint(Sketcher.Constraint("DistanceY", -1, 1, 0, 2, Q("7.653659 mm")))
sketch8.addConstraint(Sketcher.Constraint("DistanceX", -1, 1, 1, 2, Q("19.143452 mm")))
pad5 = doc.addObject("PartDesign::Pad", "Pad004")
body.addObject(pad5)
pad5.Profile = sketch8
pad5.Length = 6.5752

doc.recompute()
